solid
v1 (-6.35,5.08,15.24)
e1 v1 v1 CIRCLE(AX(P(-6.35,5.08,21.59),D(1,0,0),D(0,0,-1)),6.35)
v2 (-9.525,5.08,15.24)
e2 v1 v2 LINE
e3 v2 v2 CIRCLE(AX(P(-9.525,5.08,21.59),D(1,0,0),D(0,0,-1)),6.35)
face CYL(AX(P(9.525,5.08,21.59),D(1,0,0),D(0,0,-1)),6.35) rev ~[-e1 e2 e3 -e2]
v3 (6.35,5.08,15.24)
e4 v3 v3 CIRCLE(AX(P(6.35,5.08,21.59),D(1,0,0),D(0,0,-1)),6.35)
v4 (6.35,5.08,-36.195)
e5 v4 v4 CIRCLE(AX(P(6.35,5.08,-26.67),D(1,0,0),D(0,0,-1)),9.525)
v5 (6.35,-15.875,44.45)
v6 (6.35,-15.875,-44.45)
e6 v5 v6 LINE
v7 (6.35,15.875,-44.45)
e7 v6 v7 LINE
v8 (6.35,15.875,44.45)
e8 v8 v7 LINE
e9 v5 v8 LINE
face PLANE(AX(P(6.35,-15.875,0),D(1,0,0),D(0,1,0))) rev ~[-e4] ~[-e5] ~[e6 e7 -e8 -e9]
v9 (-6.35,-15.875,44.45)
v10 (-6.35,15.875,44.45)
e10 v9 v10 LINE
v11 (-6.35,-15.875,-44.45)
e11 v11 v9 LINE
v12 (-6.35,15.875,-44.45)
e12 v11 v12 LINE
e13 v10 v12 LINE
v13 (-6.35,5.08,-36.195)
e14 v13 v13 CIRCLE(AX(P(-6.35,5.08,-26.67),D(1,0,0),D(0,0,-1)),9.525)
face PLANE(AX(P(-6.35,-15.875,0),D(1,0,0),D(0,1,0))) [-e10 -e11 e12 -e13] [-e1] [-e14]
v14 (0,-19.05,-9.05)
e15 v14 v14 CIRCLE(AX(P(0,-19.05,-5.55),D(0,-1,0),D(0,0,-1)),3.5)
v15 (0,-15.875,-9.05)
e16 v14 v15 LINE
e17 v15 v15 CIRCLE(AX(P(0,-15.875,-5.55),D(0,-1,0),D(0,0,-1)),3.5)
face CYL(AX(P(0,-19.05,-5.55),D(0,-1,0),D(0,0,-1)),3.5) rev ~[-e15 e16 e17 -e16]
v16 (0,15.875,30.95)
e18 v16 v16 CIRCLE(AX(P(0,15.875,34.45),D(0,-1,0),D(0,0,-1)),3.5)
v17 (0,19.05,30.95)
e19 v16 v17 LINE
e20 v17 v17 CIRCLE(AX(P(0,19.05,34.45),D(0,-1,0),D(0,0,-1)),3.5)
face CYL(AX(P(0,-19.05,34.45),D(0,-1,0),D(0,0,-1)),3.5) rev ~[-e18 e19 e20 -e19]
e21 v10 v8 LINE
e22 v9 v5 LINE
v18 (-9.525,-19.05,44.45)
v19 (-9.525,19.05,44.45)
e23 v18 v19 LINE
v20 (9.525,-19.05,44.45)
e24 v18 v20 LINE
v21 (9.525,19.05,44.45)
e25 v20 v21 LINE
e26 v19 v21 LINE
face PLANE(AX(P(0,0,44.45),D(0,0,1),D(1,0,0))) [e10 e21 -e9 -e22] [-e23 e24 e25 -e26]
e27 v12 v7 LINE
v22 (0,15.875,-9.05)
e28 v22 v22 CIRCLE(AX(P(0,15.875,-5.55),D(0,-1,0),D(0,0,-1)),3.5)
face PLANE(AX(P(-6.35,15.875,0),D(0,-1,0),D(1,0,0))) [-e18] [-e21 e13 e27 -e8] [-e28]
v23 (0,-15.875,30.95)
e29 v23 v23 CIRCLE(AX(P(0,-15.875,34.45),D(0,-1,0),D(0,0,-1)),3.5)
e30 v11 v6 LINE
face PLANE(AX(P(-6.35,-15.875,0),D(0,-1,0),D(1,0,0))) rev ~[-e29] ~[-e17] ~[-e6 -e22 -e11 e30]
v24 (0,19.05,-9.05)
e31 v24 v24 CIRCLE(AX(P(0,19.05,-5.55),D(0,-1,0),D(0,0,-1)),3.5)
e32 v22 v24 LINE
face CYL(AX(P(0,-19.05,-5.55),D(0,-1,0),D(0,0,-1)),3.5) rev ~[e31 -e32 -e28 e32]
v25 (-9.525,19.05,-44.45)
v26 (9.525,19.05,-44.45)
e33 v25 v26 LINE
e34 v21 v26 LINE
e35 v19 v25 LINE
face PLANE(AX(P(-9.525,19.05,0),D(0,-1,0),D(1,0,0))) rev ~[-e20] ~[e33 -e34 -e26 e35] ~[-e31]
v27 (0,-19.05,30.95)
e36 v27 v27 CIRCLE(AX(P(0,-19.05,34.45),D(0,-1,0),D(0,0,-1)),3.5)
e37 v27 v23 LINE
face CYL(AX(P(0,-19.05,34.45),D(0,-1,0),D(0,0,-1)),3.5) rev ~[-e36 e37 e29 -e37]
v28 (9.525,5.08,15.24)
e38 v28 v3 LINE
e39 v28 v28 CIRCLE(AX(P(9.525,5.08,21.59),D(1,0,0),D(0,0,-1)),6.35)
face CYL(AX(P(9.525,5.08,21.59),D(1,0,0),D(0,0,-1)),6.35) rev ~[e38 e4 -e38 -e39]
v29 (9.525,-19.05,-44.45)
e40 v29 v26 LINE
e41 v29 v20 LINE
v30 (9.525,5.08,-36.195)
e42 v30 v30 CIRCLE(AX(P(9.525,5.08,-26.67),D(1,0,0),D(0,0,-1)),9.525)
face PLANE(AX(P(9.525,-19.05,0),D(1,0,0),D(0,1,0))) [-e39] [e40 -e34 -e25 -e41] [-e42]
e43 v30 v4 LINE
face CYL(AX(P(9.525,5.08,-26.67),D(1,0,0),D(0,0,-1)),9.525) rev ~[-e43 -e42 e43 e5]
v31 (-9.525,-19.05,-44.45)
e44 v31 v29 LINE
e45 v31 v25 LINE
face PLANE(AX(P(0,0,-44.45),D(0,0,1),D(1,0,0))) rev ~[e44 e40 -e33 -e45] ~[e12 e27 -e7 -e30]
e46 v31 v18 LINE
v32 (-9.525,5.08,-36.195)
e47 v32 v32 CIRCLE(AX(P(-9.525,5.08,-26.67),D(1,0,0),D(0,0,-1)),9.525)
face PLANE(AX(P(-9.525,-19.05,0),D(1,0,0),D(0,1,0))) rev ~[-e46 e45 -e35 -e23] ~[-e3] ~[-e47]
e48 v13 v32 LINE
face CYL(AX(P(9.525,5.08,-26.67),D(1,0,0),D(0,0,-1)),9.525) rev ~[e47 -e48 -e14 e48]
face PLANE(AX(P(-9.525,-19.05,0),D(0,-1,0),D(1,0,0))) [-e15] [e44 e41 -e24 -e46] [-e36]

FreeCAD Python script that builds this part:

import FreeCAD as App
import Part
import Sketcher
from FreeCAD import Vector
Q = App.Units.Quantity


def add_polygon(sketch, points):
    """Adds a closed chain of lines whose ends are joined by coincident constraints."""
    first, n = sketch.GeometryCount, len(points)
    for a, b in zip(points, points[1:] + points[:1]):
        sketch.addGeometry(Part.LineSegment(App.Vector(*a, 0), App.Vector(*b, 0)), False)
    for i in range(n):
        sketch.addConstraint(Sketcher.Constraint("Coincident", first + i, 2, first + (i + 1) % n, 1))

doc = App.newDocument("Part")
body = doc.addObject("PartDesign::Body", "Body")

# Sketch on XY plane
sketch1 = doc.addObject("Sketcher::SketchObject", "Sketch")
body.addObject(sketch1)
sketch1.AttachmentSupport = (doc.XY_Plane, [""])
sketch1.MapMode = "FlatFace"
add_polygon(sketch1, [(-9.525, 19.05), (-9.525, -19.05), (9.525, -19.05), (9.525, 19.05)])  # lines 0-3
add_polygon(sketch1, [(6.35, -15.875), (-6.35, -15.875), (-6.35, 15.875), (6.35, 15.875)])  # lines 4-7
sketch1.addConstraint([
    Sketcher.Constraint("Vertical", 0),
    Sketcher.Constraint("Horizontal", 1),
    Sketcher.Constraint("Vertical", 2),
    Sketcher.Constraint("Horizontal", 3),
    Sketcher.Constraint("Horizontal", 4),
    Sketcher.Constraint("Vertical", 5),
    Sketcher.Constraint("Horizontal", 6),
    Sketcher.Constraint("Vertical", 7),
    Sketcher.Constraint("Symmetric", 0, 2, 2, 2, -1, 1),
    Sketcher.Constraint("Symmetric", 4, 2, 6, 2, -1, 1),
    Sketcher.Constraint("DistanceX", 4, 2, 4, 1, Q("0.5 in")),
    Sketcher.Constraint("DistanceY", 0, 2, 0, 1, Q("1.5 in")),
    Sketcher.Constraint("DistanceX", 1, 1, 1, 2, Q("0.75 in")),
    Sketcher.Constraint("DistanceY", 5, 1, 5, 2, Q("1.25 in")),
])
pad1 = doc.addObject("PartDesign::Pad", "Pad")
body.addObject(pad1)
pad1.Profile = sketch1
pad1.Length = Q("3.5 in")
pad1.Midplane = True

# Sketch on XZ plane
sketch2 = doc.addObject("Sketcher::SketchObject", "Sketch001")
body.addObject(sketch2)
sketch2.AttachmentSupport = (doc.XZ_Plane, [""])
sketch2.MapMode = "FlatFace"
sketch2.AttachmentOffset = App.Placement(Vector(0, 0, 0.75 * 25.4), App.Rotation())
sketch2.addGeometry([
    Part.Circle(Vector(0, 34.45, 0), Vector(0, 0, 1), 3.5),
    Part.Circle(Vector(0, -5.55, 0), Vector(0, 0, 1), 3.5),
], False)
sketch2.addConstraint([
    Sketcher.Constraint("Equal", 0, 1),
    Sketcher.Constraint("PointOnObject", 0, 3, -2),
    Sketcher.Constraint("PointOnObject", 1, 3, -2),
    Sketcher.Constraint("Diameter", 0, 7.0),
    Sketcher.Constraint("DistanceY", -1, 1, 0, 3, 34.45),
    Sketcher.Constraint("DistanceY", 1, 3, -1, 1, 5.55),
])
pocket1 = doc.addObject("PartDesign::Pocket", "Pocket")
body.addObject(pocket1)
pocket1.Profile = sketch2
pocket1.Length = Q("3 in")

# Sketch on YZ plane
sketch3 = doc.addObject("Sketcher::SketchObject", "Sketch002")
body.addObject(sketch3)
sketch3.AttachmentSupport = (doc.YZ_Plane, [""])
sketch3.MapMode = "FlatFace"
sketch3.AttachmentOffset = App.Placement(Vector(0, 0, 0.375 * 25.4), App.Rotation())
sketch3.addGeometry([
    Part.Circle(Vector(5.08, 21.59, 0), Vector(0, 0, 1), 6.35),
    Part.Circle(Vector(5.08, -26.67, 0), Vector(0, 0, 1), 9.525),
], False)
sketch3.addConstraint([
    Sketcher.Constraint("Vertical", 0, 3, 1, 3),
    Sketcher.Constraint("Diameter", 0, Q("0.5 in")),
    Sketcher.Constraint("Diameter", 1, Q("0.75 in")),
    Sketcher.Constraint("DistanceX", -1, 1, 0, 3, Q("0.2 in")),
    Sketcher.Constraint("DistanceY", 1, 3, 0, 3, Q("1.9 in")),
    Sketcher.Constraint("DistanceY", -1, 1, 0, 3, Q("0.85 in")),
])
pocket2 = doc.addObject("PartDesign::Pocket", "Pocket001")
body.addObject(pocket2)
pocket2.Profile = sketch3
pocket2.Type = "ThroughAll"

doc.recompute()
